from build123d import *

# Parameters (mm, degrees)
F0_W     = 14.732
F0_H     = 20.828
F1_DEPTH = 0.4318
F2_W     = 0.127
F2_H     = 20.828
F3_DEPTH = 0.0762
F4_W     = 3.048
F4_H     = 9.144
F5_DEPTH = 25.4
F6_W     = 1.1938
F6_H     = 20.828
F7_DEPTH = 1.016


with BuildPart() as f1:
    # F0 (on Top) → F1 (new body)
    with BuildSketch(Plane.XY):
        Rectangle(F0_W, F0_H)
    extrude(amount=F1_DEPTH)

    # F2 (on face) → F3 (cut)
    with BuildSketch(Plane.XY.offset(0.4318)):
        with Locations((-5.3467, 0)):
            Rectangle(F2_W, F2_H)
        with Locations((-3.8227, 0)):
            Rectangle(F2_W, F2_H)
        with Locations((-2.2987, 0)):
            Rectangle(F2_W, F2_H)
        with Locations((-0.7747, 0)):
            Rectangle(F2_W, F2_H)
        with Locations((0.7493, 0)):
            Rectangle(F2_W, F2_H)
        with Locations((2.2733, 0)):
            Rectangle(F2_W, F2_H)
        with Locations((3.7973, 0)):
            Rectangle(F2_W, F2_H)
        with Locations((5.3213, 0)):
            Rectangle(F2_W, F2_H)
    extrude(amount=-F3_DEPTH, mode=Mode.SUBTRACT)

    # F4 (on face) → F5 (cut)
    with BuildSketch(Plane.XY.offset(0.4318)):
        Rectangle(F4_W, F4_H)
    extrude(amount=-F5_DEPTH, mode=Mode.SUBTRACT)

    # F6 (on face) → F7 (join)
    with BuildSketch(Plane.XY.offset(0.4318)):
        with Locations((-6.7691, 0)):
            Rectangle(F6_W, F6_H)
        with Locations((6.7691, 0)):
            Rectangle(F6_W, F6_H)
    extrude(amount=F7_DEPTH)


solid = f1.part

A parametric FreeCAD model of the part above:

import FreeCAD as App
import Part
import Sketcher
Q = App.Units.Quantity

doc = App.newDocument("Part")
params = doc.addObject("Spreadsheet::Sheet", "Params")
for row, (alias, value) in enumerate([
    ("sketch1_width", "0.58 in"),
    ("sketch1_height", "0.82 in"),
    ("pad1_length", "0.017 in"),
    ("sketch2_height", "0.82 in"),
    ("sketch2_width", "0.005 in"),
    ("pocket1_length", "0.003 in"),
    ("sketch3_width", "0.12 in"),
    ("sketch3_height", "0.36 in"),
    ("pocket2_length", "1 in"),
    ("sketch4_height", "0.82 in"),
    ("sketch4_width", "0.047 in"),
    ("pad2_length", "0.04 in"),
], start=1):
    params.set(f"A{row}", alias)
    params.set(f"B{row}", "=" + value)
    params.setAlias(f"B{row}", alias)

body = doc.addObject("PartDesign::Body", "Body")

# Sketch on XY plane
sketch1 = body.newObject("Sketcher::SketchObject", "Sketch")
sketch1.AttachmentSupport = (doc.getObject("XY_Plane"), [""])
sketch1.MapMode = "FlatFace"
sketch1.addGeometry([
    Part.LineSegment(App.Vector(-7, 10, 0), App.Vector(-7, -10, 0)),
    Part.LineSegment(App.Vector(-7, -10, 0), App.Vector(7, -10, 0)),
    Part.LineSegment(App.Vector(7, -10, 0), App.Vector(7, 10, 0)),
    Part.LineSegment(App.Vector(7, 10, 0), App.Vector(-7, 10, 0)),
], False)
sketch1.addConstraint([
    Sketcher.Constraint("Coincident", 0, 2, 1, 1),
    Sketcher.Constraint("Coincident", 1, 2, 2, 1),
    Sketcher.Constraint("Coincident", 2, 2, 3, 1),
    Sketcher.Constraint("Coincident", 3, 2, 0, 1),
    Sketcher.Constraint("Vertical", 0),
    Sketcher.Constraint("Horizontal", 1),
    Sketcher.Constraint("Vertical", 2),
    Sketcher.Constraint("Horizontal", 3),
    Sketcher.Constraint("Symmetric", 0, 2, 2, 2, -1, 1),
    Sketcher.Constraint("DistanceX", 1, 1, 1, 2, Q("0.58 in")),
    Sketcher.Constraint("DistanceY", 0, 2, 0, 1, Q("0.82 in")),
])
sketch1.setExpression("Constraints[9]", "Params.sketch1_width")
sketch1.setExpression("Constraints[10]", "Params.sketch1_height")
pad1 = body.newObject("PartDesign::Pad", "Pad")
pad1.Profile = sketch1
pad1.setExpression("Length", "Params.pad1_length")

# Sketch on XY plane
sketch2 = body.newObject("Sketcher::SketchObject", "Sketch001")
sketch2.AttachmentSupport = (doc.getObject("XY_Plane"), [""])
sketch2.MapMode = "FlatFace"
sketch2.AttachmentOffset = App.Placement(App.Vector(0, 0, 0.017 * 25.4), App.Rotation())
sketch2.addGeometry([
    Part.LineSegment(App.Vector(-5.41, 10.41, 0), App.Vector(-5.41, -10.41, 0)),  # 0
    Part.LineSegment(App.Vector(-5.41, -10.41, 0), App.Vector(-5.28, -10.41, 0)),  # 1
    Part.LineSegment(App.Vector(-5.28, -10.41, 0), App.Vector(-5.28, 10.41, 0)),  # 2
    Part.LineSegment(App.Vector(-5.28, 10.41, 0), App.Vector(-5.41, 10.41, 0)),  # 3
    Part.LineSegment(App.Vector(-3.89, 10.41, 0), App.Vector(-3.89, -10.41, 0)),  # 4
    Part.LineSegment(App.Vector(-3.89, -10.41, 0), App.Vector(-3.76, -10.41, 0)),  # 5
    Part.LineSegment(App.Vector(-3.76, -10.41, 0), App.Vector(-3.76, 10.41, 0)),  # 6
    Part.LineSegment(App.Vector(-3.76, 10.41, 0), App.Vector(-3.89, 10.41, 0)),  # 7
    Part.LineSegment(App.Vector(-2.36, 10.41, 0), App.Vector(-2.36, -10.41, 0)),  # 8
    Part.LineSegment(App.Vector(-2.36, -10.41, 0), App.Vector(-2.24, -10.41, 0)),  # 9
    Part.LineSegment(App.Vector(-2.24, -10.41, 0), App.Vector(-2.24, 10.41, 0)),  # 10
    Part.LineSegment(App.Vector(-2.24, 10.41, 0), App.Vector(-2.36, 10.41, 0)),  # 11
    Part.LineSegment(App.Vector(-0.84, 10.41, 0), App.Vector(-0.84, -10.41, 0)),  # 12
    Part.LineSegment(App.Vector(-0.84, -10.41, 0), App.Vector(-0.71, -10.41, 0)),  # 13
    Part.LineSegment(App.Vector(-0.71, -10.41, 0), App.Vector(-0.71, 10.41, 0)),  # 14
    Part.LineSegment(App.Vector(-0.71, 10.41, 0), App.Vector(-0.84, 10.41, 0)),  # 15
    Part.LineSegment(App.Vector(0.69, 10.41, 0), App.Vector(0.69, -10.41, 0)),  # 16
    Part.LineSegment(App.Vector(0.69, -10.41, 0), App.Vector(0.81, -10.41, 0)),  # 17
    Part.LineSegment(App.Vector(0.81, -10.41, 0), App.Vector(0.81, 10.41, 0)),  # 18
    Part.LineSegment(App.Vector(0.81, 10.41, 0), App.Vector(0.69, 10.41, 0)),  # 19
    Part.LineSegment(App.Vector(2.21, 10.41, 0), App.Vector(2.21, -10.41, 0)),  # 20
    Part.LineSegment(App.Vector(2.21, -10.41, 0), App.Vector(2.34, -10.41, 0)),  # 21
    Part.LineSegment(App.Vector(2.34, -10.41, 0), App.Vector(2.34, 10.41, 0)),  # 22
    Part.LineSegment(App.Vector(2.34, 10.41, 0), App.Vector(2.21, 10.41, 0)),  # 23
    Part.LineSegment(App.Vector(3.73, 10.41, 0), App.Vector(3.73, -10.41, 0)),  # 24
    Part.LineSegment(App.Vector(3.73, -10.41, 0), App.Vector(3.86, -10.41, 0)),  # 25
    Part.LineSegment(App.Vector(3.86, -10.41, 0), App.Vector(3.86, 10.41, 0)),  # 26
    Part.LineSegment(App.Vector(3.86, 10.41, 0), App.Vector(3.73, 10.41, 0)),  # 27
    Part.LineSegment(App.Vector(5.26, 10.41, 0), App.Vector(5.26, -10.41, 0)),  # 28
    Part.LineSegment(App.Vector(5.26, -10.41, 0), App.Vector(5.38, -10.41, 0)),  # 29
    Part.LineSegment(App.Vector(5.38, -10.41, 0), App.Vector(5.38, 10.41, 0)),  # 30
    Part.LineSegment(App.Vector(5.38, 10.41, 0), App.Vector(5.26, 10.41, 0)),  # 31
], False)
sketch2.addConstraint([
    Sketcher.Constraint("Coincident", 0, 2, 1, 1),
    Sketcher.Constraint("Coincident", 1, 2, 2, 1),
    Sketcher.Constraint("Coincident", 2, 2, 3, 1),
    Sketcher.Constraint("Coincident", 3, 2, 0, 1),
    Sketcher.Constraint("Coincident", 4, 2, 5, 1),
    Sketcher.Constraint("Coincident", 5, 2, 6, 1),
    Sketcher.Constraint("Coincident", 6, 2, 7, 1),
    Sketcher.Constraint("Coincident", 7, 2, 4, 1),
    Sketcher.Constraint("Coincident", 8, 2, 9, 1),
    Sketcher.Constraint("Coincident", 9, 2, 10, 1),
    Sketcher.Constraint("Coincident", 10, 2, 11, 1),
    Sketcher.Constraint("Coincident", 11, 2, 8, 1),
    Sketcher.Constraint("Coincident", 12, 2, 13, 1),
    Sketcher.Constraint("Coincident", 13, 2, 14, 1),
    Sketcher.Constraint("Coincident", 14, 2, 15, 1),
    Sketcher.Constraint("Coincident", 15, 2, 12, 1),
    Sketcher.Constraint("Coincident", 16, 2, 17, 1),
    Sketcher.Constraint("Coincident", 17, 2, 18, 1),
    Sketcher.Constraint("Coincident", 18, 2, 19, 1),
    Sketcher.Constraint("Coincident", 19, 2, 16, 1),
    Sketcher.Constraint("Coincident", 20, 2, 21, 1),
    Sketcher.Constraint("Coincident", 21, 2, 22, 1),
    Sketcher.Constraint("Coincident", 22, 2, 23, 1),
    Sketcher.Constraint("Coincident", 23, 2, 20, 1),
    Sketcher.Constraint("Coincident", 24, 2, 25, 1),
    Sketcher.Constraint("Coincident", 25, 2, 26, 1),
    Sketcher.Constraint("Coincident", 26, 2, 27, 1),
    Sketcher.Constraint("Coincident", 27, 2, 24, 1),
    Sketcher.Constraint("Coincident", 28, 2, 29, 1),
    Sketcher.Constraint("Coincident", 29, 2, 30, 1),
    Sketcher.Constraint("Coincident", 30, 2, 31, 1),
    Sketcher.Constraint("Coincident", 31, 2, 28, 1),
    Sketcher.Constraint("Vertical", 0),
    Sketcher.Constraint("Horizontal", 1),
    Sketcher.Constraint("Vertical", 2),
    Sketcher.Constraint("Horizontal", 3),
    Sketcher.Constraint("Vertical", 4),
    Sketcher.Constraint("Horizontal", 5),
    Sketcher.Constraint("Vertical", 6),
    Sketcher.Constraint("Horizontal", 7),
    Sketcher.Constraint("Vertical", 8),
    Sketcher.Constraint("Horizontal", 9),
    Sketcher.Constraint("Vertical", 10),
    Sketcher.Constraint("Horizontal", 11),
    Sketcher.Constraint("Vertical", 12),
    Sketcher.Constraint("Horizontal", 13),
    Sketcher.Constraint("Vertical", 14),
    Sketcher.Constraint("Horizontal", 15),
    Sketcher.Constraint("Vertical", 16),
    Sketcher.Constraint("Horizontal", 17),
    Sketcher.Constraint("Vertical", 18),
    Sketcher.Constraint("Horizontal", 19),
    Sketcher.Constraint("Vertical", 20),
    Sketcher.Constraint("Horizontal", 21),
    Sketcher.Constraint("Vertical", 22),
    Sketcher.Constraint("Horizontal", 23),
    Sketcher.Constraint("Vertical", 24),
    Sketcher.Constraint("Horizontal", 25),
    Sketcher.Constraint("Vertical", 26),
    Sketcher.Constraint("Horizontal", 27),
    Sketcher.Constraint("Vertical", 28),
    Sketcher.Constraint("Horizontal", 29),
    Sketcher.Constraint("Vertical", 30),
    Sketcher.Constraint("Horizontal", 31),
    Sketcher.Constraint("Horizontal", 1, 2, 4, 2),
    Sketcher.Constraint("Horizontal", 3, 2, 6, 2),
    Sketcher.Constraint("Horizontal", 5, 2, 8, 2),
    Sketcher.Constraint("Horizontal", 7, 2, 10, 2),
    Sketcher.Constraint("Horizontal", 9, 2, 12, 2),
    Sketcher.Constraint("Horizontal", 11, 2, 14, 2),
    Sketcher.Constraint("Horizontal", 13, 2, 16, 2),
    Sketcher.Constraint("Horizontal", 15, 2, 18, 2),
    Sketcher.Constraint("Horizontal", 17, 2, 20, 2),
    Sketcher.Constraint("Horizontal", 19, 2, 22, 2),
    Sketcher.Constraint("Horizontal", 21, 2, 24, 2),
    Sketcher.Constraint("Horizontal", 23, 2, 26, 2),
    Sketcher.Constraint("Horizontal", 25, 2, 28, 2),
    Sketcher.Constraint("Horizontal", 27, 2, 30, 2),
    Sketcher.Constraint("Equal", 3, 5),
    Sketcher.Constraint("Equal", 7, 9),
    Sketcher.Constraint("Equal", 11, 13),
    Sketcher.Constraint("Equal", 15, 17),
    Sketcher.Constraint("Equal", 19, 21),
    Sketcher.Constraint("Equal", 23, 25),
    Sketcher.Constraint("Equal", 27, 29),
    Sketcher.Constraint("DistanceY", 0, 2, 0, 1, Q("0.82 in")),
    Sketcher.Constraint("DistanceX", 1, 1, 1, 2, Q("0.005 in")),
    Sketcher.Constraint("DistanceY", 0, 2, -1, 1, Q("0.41 in")),
    Sketcher.Constraint("DistanceX", 0, 2, 4, 2, Q("0.06 in")),
    Sketcher.Constraint("DistanceX", 4, 2, 8, 2, Q("0.06 in")),
    Sketcher.Constraint("DistanceX", 8, 2, 12, 2, Q("0.06 in")),
    Sketcher.Constraint("DistanceX", 12, 2, 16, 2, Q("0.06 in")),
    Sketcher.Constraint("DistanceX", 16, 2, 20, 2, Q("0.06 in")),
    Sketcher.Constraint("DistanceX", 20, 2, 24, 2, Q("0.06 in")),
    Sketcher.Constraint("DistanceX", 24, 2, 28, 2, Q("0.06 in")),
    Sketcher.Constraint("DistanceX", 0, 2, -1, 1, Q("0.213 in")),
])
sketch2.setExpression("Constraints[85]", "Params.sketch2_height")
sketch2.setExpression("Constraints[86]", "Params.sketch2_width")
pocket1 = body.newObject("PartDesign::Pocket", "Pocket")
pocket1.Profile = sketch2
pocket1.setExpression("Length", "Params.pocket1_length")

# Sketch on XY plane
sketch3 = body.newObject("Sketcher::SketchObject", "Sketch002")
sketch3.AttachmentSupport = (doc.getObject("XY_Plane"), [""])
sketch3.MapMode = "FlatFace"
sketch3.AttachmentOffset = App.Placement(App.Vector(0, 0, 0.017 * 25.4), App.Rotation())
sketch3.addGeometry([
    Part.LineSegment(App.Vector(-1.5, 4.6, 0), App.Vector(-1.5, -4.6, 0)),
    Part.LineSegment(App.Vector(-1.5, -4.6, 0), App.Vector(1.5, -4.6, 0)),
    Part.LineSegment(App.Vector(1.5, -4.6, 0), App.Vector(1.5, 4.6, 0)),
    Part.LineSegment(App.Vector(1.5, 4.6, 0), App.Vector(-1.5, 4.6, 0)),
], False)
sketch3.addConstraint([
    Sketcher.Constraint("Coincident", 0, 2, 1, 1),
    Sketcher.Constraint("Coincident", 1, 2, 2, 1),
    Sketcher.Constraint("Coincident", 2, 2, 3, 1),
    Sketcher.Constraint("Coincident", 3, 2, 0, 1),
    Sketcher.Constraint("Vertical", 0),
    Sketcher.Constraint("Horizontal", 1),
    Sketcher.Constraint("Vertical", 2),
    Sketcher.Constraint("Horizontal", 3),
    Sketcher.Constraint("Symmetric", 0, 2, 2, 2, -1, 1),
    Sketcher.Constraint("DistanceX", 1, 1, 1, 2, Q("0.12 in")),
    Sketcher.Constraint("DistanceY", 0, 2, 0, 1, Q("0.36 in")),
])
sketch3.setExpression("Constraints[9]", "Params.sketch3_width")
sketch3.setExpression("Constraints[10]", "Params.sketch3_height")
pocket2 = body.newObject("PartDesign::Pocket", "Pocket001")
pocket2.Profile = sketch3
pocket2.setExpression("Length", "Params.pocket2_length")

# Sketch on XY plane
sketch4 = body.newObject("Sketcher::SketchObject", "Sketch003")
sketch4.AttachmentSupport = (doc.getObject("XY_Plane"), [""])
sketch4.MapMode = "FlatFace"
sketch4.AttachmentOffset = App.Placement(App.Vector(0, 0, 0.017 * 25.4), App.Rotation())
sketch4.addGeometry([
    Part.LineSegment(App.Vector(-7.4, 10.4, 0), App.Vector(-7.4, -10.4, 0)),  # 0
    Part.LineSegment(App.Vector(-7.4, -10.4, 0), App.Vector(-6.2, -10.4, 0)),  # 1
    Part.LineSegment(App.Vector(-6.2, -10.4, 0), App.Vector(-6.2, 10.4, 0)),  # 2
    Part.LineSegment(App.Vector(-6.2, 10.4, 0), App.Vector(-7.4, 10.4, 0)),  # 3
    Part.LineSegment(App.Vector(6.2, 10.4, 0), App.Vector(6.2, -10.4, 0)),  # 4
    Part.LineSegment(App.Vector(6.2, -10.4, 0), App.Vector(7.4, -10.4, 0)),  # 5
    Part.LineSegment(App.Vector(7.4, -10.4, 0), App.Vector(7.4, 10.4, 0)),  # 6
    Part.LineSegment(App.Vector(7.4, 10.4, 0), App.Vector(6.2, 10.4, 0)),  # 7
], False)
sketch4.addConstraint([
    Sketcher.Constraint("Coincident", 0, 2, 1, 1),
    Sketcher.Constraint("Coincident", 1, 2, 2, 1),
    Sketcher.Constraint("Coincident", 2, 2, 3, 1),
    Sketcher.Constraint("Coincident", 3, 2, 0, 1),
    Sketcher.Constraint("Coincident", 4, 2, 5, 1),
    Sketcher.Constraint("Coincident", 5, 2, 6, 1),
    Sketcher.Constraint("Coincident", 6, 2, 7, 1),
    Sketcher.Constraint("Coincident", 7, 2, 4, 1),
    Sketcher.Constraint("Vertical", 0),
    Sketcher.Constraint("Horizontal", 1),
    Sketcher.Constraint("Vertical", 2),
    Sketcher.Constraint("Horizontal", 3),
    Sketcher.Constraint("Vertical", 4),
    Sketcher.Constraint("Horizontal", 5),
    Sketcher.Constraint("Vertical", 6),
    Sketcher.Constraint("Horizontal", 7),
    Sketcher.Constraint("Symmetric", 2, 2, 4, 2, -1, 1),
    Sketcher.Constraint("Symmetric", 0, 2, 6, 2, -1, 1),
    Sketcher.Constraint("Horizontal", 1, 2, 4, 2),
    Sketcher.Constraint("DistanceY", 0, 2, 0, 1, Q("0.82 in")),
    Sketcher.Constraint("DistanceX", 1, 1, 1, 2, Q("0.047 in")),
    Sketcher.Constraint("DistanceX", 0, 2, -1, 1, Q("0.29 in")),
])
sketch4.setExpression("Constraints[19]", "Params.sketch4_height")
sketch4.setExpression("Constraints[20]", "Params.sketch4_width")
pad2 = body.newObject("PartDesign::Pad", "Pad001")
pad2.Profile = sketch4
pad2.setExpression("Length", "Params.pad2_length")

doc.recompute()
